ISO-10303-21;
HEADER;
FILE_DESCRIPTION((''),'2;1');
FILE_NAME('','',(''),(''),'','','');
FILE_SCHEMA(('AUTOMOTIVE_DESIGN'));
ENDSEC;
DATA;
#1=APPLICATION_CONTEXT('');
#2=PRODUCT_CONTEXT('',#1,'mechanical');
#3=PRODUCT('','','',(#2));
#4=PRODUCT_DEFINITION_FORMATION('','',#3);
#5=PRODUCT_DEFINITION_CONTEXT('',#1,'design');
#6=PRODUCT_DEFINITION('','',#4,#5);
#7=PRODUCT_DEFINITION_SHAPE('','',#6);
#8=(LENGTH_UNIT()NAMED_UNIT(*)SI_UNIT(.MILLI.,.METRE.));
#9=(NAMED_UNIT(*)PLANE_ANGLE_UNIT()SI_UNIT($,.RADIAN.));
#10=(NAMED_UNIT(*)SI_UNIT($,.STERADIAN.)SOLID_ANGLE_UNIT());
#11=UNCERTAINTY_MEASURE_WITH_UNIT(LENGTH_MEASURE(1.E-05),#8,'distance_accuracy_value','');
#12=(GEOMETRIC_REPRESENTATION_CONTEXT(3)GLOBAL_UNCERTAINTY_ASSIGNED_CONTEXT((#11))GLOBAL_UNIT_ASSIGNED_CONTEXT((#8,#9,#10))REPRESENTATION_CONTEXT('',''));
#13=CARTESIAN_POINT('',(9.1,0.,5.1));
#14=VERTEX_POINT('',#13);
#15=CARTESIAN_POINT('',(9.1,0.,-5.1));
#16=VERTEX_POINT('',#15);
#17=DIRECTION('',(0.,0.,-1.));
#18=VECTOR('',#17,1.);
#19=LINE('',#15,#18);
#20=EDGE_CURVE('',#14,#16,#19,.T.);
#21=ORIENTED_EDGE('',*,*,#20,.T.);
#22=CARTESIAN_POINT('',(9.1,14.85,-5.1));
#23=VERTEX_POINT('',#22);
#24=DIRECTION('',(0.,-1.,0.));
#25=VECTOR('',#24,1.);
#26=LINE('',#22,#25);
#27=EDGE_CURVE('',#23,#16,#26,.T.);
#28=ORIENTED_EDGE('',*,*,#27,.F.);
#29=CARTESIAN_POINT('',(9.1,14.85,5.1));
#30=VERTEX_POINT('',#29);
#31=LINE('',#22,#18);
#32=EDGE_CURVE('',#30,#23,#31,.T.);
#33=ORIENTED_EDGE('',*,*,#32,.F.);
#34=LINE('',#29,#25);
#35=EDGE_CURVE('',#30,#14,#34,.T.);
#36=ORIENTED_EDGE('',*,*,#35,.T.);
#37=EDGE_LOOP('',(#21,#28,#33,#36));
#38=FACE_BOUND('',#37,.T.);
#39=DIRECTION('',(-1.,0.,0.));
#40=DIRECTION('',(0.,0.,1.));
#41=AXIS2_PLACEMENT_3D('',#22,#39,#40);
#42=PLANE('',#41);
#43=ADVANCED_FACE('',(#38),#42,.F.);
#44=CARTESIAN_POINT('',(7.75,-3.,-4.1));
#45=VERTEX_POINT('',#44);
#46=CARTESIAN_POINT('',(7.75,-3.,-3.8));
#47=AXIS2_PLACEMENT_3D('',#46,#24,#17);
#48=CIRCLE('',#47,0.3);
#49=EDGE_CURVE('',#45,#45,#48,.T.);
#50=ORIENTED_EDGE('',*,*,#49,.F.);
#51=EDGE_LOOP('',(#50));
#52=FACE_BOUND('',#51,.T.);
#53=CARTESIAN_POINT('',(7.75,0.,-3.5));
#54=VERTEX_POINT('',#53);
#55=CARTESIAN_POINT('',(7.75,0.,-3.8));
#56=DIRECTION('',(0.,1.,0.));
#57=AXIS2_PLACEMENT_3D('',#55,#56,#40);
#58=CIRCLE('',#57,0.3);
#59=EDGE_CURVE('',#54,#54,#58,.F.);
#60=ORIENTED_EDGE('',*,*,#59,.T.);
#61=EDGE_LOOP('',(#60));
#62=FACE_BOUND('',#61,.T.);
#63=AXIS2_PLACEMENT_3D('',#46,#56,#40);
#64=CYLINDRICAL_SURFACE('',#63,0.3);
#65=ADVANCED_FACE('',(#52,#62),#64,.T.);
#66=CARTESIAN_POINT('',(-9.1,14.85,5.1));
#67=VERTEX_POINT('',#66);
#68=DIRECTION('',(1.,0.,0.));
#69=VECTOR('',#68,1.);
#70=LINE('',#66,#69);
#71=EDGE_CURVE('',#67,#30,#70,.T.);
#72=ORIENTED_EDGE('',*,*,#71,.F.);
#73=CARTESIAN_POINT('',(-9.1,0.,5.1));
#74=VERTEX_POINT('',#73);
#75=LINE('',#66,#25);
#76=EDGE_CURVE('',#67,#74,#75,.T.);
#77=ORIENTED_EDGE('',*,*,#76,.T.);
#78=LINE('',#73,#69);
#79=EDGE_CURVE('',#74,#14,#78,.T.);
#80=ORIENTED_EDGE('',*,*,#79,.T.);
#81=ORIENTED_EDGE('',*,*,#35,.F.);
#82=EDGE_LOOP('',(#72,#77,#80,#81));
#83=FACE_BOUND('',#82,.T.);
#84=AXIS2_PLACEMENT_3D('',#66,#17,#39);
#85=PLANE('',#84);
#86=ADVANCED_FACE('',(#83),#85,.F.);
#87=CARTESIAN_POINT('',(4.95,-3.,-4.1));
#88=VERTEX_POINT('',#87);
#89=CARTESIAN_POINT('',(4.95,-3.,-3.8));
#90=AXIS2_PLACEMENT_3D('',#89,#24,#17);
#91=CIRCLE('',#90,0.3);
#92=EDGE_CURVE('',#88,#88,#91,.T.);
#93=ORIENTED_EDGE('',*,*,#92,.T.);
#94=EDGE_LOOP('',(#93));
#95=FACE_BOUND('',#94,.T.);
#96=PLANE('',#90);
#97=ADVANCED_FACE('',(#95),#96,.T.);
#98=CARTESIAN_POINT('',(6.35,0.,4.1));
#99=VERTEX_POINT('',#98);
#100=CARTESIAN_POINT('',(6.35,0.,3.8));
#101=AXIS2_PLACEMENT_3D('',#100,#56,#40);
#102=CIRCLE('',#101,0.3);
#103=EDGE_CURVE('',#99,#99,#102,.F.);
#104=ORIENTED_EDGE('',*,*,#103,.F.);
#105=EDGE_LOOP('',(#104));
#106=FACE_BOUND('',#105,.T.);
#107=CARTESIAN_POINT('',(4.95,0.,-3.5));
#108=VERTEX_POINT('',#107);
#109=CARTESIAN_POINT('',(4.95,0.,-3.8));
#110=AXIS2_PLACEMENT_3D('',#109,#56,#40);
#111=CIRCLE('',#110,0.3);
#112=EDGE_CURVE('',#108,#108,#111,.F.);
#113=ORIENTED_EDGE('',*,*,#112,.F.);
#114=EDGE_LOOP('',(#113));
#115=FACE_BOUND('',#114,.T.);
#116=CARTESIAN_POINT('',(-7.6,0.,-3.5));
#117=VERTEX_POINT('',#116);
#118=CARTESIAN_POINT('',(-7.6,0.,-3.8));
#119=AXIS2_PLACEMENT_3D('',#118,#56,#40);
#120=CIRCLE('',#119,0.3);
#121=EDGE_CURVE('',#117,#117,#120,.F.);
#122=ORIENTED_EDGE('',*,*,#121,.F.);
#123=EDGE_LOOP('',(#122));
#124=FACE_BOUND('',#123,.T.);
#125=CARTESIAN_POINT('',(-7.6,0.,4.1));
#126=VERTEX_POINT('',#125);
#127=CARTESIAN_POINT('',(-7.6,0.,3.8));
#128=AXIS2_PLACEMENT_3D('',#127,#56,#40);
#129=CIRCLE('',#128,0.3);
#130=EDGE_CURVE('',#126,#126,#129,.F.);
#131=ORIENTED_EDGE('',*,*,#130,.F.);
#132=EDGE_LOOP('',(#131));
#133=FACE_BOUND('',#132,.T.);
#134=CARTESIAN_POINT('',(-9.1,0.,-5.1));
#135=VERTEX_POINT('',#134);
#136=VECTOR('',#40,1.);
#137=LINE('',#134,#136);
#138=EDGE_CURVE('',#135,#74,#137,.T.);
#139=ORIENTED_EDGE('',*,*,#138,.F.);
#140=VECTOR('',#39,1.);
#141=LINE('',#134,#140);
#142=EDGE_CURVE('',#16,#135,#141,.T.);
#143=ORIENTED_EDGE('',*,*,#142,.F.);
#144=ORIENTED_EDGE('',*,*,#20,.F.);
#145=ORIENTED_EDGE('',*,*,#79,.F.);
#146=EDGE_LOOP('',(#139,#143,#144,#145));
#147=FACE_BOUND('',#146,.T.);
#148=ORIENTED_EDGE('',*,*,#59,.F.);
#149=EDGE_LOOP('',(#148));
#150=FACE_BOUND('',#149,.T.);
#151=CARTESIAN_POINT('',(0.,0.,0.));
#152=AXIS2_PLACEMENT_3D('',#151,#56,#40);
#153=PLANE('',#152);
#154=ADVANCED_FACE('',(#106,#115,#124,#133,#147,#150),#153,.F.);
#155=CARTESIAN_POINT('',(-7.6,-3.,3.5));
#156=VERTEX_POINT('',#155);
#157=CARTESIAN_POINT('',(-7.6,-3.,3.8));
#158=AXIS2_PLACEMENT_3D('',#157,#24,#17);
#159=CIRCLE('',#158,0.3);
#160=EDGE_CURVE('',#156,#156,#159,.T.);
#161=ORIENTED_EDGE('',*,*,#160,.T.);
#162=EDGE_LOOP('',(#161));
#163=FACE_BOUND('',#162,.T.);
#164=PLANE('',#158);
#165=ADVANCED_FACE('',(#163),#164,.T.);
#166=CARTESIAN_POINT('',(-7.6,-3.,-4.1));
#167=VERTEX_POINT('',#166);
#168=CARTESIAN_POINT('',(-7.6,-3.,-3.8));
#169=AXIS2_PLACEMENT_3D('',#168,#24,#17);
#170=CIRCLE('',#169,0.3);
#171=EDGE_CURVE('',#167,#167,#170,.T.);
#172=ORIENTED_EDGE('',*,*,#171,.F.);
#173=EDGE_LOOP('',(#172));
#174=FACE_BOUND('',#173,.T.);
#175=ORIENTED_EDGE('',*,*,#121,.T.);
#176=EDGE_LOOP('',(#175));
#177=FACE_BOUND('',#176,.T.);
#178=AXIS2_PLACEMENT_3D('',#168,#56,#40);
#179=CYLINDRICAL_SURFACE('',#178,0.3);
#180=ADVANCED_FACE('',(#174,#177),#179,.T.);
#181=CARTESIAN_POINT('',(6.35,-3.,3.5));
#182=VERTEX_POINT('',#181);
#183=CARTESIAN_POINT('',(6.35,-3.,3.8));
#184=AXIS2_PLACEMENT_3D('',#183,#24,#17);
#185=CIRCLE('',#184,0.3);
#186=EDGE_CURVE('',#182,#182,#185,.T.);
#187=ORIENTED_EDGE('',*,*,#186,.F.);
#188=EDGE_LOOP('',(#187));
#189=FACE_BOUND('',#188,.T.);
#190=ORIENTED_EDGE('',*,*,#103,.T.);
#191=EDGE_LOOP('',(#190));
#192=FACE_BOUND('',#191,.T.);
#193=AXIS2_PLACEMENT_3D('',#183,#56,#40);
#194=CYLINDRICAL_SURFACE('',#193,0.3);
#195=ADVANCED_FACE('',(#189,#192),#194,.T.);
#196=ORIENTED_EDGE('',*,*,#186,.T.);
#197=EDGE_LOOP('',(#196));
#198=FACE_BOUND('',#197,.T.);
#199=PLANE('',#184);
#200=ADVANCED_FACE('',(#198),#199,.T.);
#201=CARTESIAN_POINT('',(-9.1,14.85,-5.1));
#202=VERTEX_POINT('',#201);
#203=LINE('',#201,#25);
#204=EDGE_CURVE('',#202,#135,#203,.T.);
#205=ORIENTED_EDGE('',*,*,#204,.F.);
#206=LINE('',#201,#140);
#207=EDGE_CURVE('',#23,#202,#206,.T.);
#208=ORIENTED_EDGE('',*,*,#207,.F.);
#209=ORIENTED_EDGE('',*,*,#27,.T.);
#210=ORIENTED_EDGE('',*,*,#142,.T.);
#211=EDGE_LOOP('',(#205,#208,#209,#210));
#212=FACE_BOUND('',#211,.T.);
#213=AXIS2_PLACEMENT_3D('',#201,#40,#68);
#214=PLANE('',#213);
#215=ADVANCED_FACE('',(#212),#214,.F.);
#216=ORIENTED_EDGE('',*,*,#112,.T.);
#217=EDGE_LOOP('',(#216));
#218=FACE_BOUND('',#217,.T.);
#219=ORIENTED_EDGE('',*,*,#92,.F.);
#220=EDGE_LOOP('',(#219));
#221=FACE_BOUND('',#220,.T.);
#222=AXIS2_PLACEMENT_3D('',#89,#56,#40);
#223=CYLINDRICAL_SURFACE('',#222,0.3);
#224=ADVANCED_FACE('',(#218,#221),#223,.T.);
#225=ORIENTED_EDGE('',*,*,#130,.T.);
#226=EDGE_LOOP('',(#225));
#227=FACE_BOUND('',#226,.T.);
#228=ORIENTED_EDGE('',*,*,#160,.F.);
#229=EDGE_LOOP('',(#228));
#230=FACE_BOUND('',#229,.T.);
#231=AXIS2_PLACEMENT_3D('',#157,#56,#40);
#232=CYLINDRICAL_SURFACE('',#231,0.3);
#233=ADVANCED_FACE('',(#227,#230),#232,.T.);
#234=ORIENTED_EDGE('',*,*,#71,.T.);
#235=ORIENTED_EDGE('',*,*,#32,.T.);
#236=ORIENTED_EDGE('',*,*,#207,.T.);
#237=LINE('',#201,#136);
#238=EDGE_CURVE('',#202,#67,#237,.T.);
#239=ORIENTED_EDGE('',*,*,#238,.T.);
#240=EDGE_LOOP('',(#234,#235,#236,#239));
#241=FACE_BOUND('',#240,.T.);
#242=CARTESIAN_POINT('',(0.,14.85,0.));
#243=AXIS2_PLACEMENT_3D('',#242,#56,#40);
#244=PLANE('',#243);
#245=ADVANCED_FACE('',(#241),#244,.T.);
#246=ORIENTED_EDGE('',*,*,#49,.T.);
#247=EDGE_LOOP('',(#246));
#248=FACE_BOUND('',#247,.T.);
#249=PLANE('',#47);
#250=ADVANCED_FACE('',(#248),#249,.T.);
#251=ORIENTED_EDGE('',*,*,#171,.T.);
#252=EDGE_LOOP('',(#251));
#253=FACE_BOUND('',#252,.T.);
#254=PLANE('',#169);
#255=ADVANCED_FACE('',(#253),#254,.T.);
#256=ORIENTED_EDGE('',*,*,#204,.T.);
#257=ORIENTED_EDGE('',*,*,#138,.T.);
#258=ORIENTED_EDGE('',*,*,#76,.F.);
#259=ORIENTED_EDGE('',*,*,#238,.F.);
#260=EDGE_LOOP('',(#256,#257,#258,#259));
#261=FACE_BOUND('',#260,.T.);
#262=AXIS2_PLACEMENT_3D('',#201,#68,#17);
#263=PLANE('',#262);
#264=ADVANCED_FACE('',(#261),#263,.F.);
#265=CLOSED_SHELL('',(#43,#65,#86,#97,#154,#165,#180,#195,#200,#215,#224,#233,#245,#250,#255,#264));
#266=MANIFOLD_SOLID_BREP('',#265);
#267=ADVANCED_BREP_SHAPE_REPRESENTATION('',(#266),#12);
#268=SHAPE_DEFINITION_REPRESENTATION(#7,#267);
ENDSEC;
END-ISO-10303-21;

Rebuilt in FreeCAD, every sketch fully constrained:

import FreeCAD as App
import Part
import Sketcher

V = App.Vector


def add_polygon(sketch, points):
    """Adds a closed chain of lines whose ends are joined by coincident constraints."""
    first, n = sketch.GeometryCount, len(points)
    for a, b in zip(points, points[1:] + points[:1]):
        sketch.addGeometry(Part.LineSegment(App.Vector(*a, 0), App.Vector(*b, 0)), False)
    for i in range(n):
        sketch.addConstraint(Sketcher.Constraint("Coincident", first + i, 2, first + (i + 1) % n, 1))

doc = App.newDocument("Part")
body = doc.addObject("PartDesign::Body", "Body")

# Sketch on XZ plane
sketch1 = doc.addObject("Sketcher::SketchObject", "Sketch")
body.addObject(sketch1)
sketch1.AttachmentSupport = (doc.XZ_Plane, [""])
sketch1.MapMode = "FlatFace"
add_polygon(sketch1, [(-9, -5), (-9, 5), (9, 5), (9, -5)])  # lines 0-3
sketch1.addConstraint([
    Sketcher.Constraint("Vertical", 0),
    Sketcher.Constraint("Horizontal", 1),
    Sketcher.Constraint("Vertical", 2),
    Sketcher.Constraint("Horizontal", 3),
    Sketcher.Constraint("Symmetric", 0, 2, 2, 2, -1, 1),
    Sketcher.Constraint("DistanceX", 1, 1, 1, 2, 18.2),
    Sketcher.Constraint("DistanceY", 0, 1, 0, 2, 10.2),
])
pad1 = doc.addObject("PartDesign::Pad", "Pad")
body.addObject(pad1)
pad1.Profile = sketch1
pad1.Length = 14.85
pad1.Reversed = True

# Sketch on XZ plane
sketch2 = doc.addObject("Sketcher::SketchObject", "Sketch001")
body.addObject(sketch2)
sketch2.AttachmentSupport = (doc.XZ_Plane, [""])
sketch2.MapMode = "FlatFace"
sketch2.addGeometry([
    Part.Circle(V(-7.6, 3.8, 0), V(0, 0, 1), 0.3),  # 0
    Part.Circle(V(-7.6, -3.8, 0), V(0, 0, 1), 0.3),  # 1
    Part.Circle(V(6.35, 3.8, 0), V(0, 0, 1), 0.3),  # 2
    Part.Circle(V(4.95, -3.8, 0), V(0, 0, 1), 0.3),  # 3
    Part.Circle(V(7.75, -3.8, 0), V(0, 0, 1), 0.3),  # 4
], False)
sketch2.addConstraint([
    Sketcher.Constraint("Equal", 0, 1),
    Sketcher.Constraint("Equal", 1, 2),
    Sketcher.Constraint("Equal", 2, 3),
    Sketcher.Constraint("Equal", 3, 4),
    Sketcher.Constraint("Symmetric", 0, 3, 1, 3, -1),
    Sketcher.Constraint("Horizontal", 0, 3, 2, 3),
    Sketcher.Constraint("Horizontal", 1, 3, 3, 3),
    Sketcher.Constraint("Horizontal", 3, 3, 4, 3),
    Sketcher.Constraint("Diameter", 0, 0.6),
    Sketcher.Constraint("DistanceX", 0, 3, -1, 1, 7.6),
    Sketcher.Constraint("DistanceY", -1, 1, 0, 3, 3.8),
    Sketcher.Constraint("DistanceX", 3, 3, 2, 3, 1.4),
    Sketcher.Constraint("DistanceX", 3, 3, 4, 3, 2.8),
    Sketcher.Constraint("DistanceX", -1, 1, 2, 3, 6.35),
])
pad2 = doc.addObject("PartDesign::Pad", "Pad001")
body.addObject(pad2)
pad2.Profile = sketch2
pad2.Length = 3

doc.recompute()
